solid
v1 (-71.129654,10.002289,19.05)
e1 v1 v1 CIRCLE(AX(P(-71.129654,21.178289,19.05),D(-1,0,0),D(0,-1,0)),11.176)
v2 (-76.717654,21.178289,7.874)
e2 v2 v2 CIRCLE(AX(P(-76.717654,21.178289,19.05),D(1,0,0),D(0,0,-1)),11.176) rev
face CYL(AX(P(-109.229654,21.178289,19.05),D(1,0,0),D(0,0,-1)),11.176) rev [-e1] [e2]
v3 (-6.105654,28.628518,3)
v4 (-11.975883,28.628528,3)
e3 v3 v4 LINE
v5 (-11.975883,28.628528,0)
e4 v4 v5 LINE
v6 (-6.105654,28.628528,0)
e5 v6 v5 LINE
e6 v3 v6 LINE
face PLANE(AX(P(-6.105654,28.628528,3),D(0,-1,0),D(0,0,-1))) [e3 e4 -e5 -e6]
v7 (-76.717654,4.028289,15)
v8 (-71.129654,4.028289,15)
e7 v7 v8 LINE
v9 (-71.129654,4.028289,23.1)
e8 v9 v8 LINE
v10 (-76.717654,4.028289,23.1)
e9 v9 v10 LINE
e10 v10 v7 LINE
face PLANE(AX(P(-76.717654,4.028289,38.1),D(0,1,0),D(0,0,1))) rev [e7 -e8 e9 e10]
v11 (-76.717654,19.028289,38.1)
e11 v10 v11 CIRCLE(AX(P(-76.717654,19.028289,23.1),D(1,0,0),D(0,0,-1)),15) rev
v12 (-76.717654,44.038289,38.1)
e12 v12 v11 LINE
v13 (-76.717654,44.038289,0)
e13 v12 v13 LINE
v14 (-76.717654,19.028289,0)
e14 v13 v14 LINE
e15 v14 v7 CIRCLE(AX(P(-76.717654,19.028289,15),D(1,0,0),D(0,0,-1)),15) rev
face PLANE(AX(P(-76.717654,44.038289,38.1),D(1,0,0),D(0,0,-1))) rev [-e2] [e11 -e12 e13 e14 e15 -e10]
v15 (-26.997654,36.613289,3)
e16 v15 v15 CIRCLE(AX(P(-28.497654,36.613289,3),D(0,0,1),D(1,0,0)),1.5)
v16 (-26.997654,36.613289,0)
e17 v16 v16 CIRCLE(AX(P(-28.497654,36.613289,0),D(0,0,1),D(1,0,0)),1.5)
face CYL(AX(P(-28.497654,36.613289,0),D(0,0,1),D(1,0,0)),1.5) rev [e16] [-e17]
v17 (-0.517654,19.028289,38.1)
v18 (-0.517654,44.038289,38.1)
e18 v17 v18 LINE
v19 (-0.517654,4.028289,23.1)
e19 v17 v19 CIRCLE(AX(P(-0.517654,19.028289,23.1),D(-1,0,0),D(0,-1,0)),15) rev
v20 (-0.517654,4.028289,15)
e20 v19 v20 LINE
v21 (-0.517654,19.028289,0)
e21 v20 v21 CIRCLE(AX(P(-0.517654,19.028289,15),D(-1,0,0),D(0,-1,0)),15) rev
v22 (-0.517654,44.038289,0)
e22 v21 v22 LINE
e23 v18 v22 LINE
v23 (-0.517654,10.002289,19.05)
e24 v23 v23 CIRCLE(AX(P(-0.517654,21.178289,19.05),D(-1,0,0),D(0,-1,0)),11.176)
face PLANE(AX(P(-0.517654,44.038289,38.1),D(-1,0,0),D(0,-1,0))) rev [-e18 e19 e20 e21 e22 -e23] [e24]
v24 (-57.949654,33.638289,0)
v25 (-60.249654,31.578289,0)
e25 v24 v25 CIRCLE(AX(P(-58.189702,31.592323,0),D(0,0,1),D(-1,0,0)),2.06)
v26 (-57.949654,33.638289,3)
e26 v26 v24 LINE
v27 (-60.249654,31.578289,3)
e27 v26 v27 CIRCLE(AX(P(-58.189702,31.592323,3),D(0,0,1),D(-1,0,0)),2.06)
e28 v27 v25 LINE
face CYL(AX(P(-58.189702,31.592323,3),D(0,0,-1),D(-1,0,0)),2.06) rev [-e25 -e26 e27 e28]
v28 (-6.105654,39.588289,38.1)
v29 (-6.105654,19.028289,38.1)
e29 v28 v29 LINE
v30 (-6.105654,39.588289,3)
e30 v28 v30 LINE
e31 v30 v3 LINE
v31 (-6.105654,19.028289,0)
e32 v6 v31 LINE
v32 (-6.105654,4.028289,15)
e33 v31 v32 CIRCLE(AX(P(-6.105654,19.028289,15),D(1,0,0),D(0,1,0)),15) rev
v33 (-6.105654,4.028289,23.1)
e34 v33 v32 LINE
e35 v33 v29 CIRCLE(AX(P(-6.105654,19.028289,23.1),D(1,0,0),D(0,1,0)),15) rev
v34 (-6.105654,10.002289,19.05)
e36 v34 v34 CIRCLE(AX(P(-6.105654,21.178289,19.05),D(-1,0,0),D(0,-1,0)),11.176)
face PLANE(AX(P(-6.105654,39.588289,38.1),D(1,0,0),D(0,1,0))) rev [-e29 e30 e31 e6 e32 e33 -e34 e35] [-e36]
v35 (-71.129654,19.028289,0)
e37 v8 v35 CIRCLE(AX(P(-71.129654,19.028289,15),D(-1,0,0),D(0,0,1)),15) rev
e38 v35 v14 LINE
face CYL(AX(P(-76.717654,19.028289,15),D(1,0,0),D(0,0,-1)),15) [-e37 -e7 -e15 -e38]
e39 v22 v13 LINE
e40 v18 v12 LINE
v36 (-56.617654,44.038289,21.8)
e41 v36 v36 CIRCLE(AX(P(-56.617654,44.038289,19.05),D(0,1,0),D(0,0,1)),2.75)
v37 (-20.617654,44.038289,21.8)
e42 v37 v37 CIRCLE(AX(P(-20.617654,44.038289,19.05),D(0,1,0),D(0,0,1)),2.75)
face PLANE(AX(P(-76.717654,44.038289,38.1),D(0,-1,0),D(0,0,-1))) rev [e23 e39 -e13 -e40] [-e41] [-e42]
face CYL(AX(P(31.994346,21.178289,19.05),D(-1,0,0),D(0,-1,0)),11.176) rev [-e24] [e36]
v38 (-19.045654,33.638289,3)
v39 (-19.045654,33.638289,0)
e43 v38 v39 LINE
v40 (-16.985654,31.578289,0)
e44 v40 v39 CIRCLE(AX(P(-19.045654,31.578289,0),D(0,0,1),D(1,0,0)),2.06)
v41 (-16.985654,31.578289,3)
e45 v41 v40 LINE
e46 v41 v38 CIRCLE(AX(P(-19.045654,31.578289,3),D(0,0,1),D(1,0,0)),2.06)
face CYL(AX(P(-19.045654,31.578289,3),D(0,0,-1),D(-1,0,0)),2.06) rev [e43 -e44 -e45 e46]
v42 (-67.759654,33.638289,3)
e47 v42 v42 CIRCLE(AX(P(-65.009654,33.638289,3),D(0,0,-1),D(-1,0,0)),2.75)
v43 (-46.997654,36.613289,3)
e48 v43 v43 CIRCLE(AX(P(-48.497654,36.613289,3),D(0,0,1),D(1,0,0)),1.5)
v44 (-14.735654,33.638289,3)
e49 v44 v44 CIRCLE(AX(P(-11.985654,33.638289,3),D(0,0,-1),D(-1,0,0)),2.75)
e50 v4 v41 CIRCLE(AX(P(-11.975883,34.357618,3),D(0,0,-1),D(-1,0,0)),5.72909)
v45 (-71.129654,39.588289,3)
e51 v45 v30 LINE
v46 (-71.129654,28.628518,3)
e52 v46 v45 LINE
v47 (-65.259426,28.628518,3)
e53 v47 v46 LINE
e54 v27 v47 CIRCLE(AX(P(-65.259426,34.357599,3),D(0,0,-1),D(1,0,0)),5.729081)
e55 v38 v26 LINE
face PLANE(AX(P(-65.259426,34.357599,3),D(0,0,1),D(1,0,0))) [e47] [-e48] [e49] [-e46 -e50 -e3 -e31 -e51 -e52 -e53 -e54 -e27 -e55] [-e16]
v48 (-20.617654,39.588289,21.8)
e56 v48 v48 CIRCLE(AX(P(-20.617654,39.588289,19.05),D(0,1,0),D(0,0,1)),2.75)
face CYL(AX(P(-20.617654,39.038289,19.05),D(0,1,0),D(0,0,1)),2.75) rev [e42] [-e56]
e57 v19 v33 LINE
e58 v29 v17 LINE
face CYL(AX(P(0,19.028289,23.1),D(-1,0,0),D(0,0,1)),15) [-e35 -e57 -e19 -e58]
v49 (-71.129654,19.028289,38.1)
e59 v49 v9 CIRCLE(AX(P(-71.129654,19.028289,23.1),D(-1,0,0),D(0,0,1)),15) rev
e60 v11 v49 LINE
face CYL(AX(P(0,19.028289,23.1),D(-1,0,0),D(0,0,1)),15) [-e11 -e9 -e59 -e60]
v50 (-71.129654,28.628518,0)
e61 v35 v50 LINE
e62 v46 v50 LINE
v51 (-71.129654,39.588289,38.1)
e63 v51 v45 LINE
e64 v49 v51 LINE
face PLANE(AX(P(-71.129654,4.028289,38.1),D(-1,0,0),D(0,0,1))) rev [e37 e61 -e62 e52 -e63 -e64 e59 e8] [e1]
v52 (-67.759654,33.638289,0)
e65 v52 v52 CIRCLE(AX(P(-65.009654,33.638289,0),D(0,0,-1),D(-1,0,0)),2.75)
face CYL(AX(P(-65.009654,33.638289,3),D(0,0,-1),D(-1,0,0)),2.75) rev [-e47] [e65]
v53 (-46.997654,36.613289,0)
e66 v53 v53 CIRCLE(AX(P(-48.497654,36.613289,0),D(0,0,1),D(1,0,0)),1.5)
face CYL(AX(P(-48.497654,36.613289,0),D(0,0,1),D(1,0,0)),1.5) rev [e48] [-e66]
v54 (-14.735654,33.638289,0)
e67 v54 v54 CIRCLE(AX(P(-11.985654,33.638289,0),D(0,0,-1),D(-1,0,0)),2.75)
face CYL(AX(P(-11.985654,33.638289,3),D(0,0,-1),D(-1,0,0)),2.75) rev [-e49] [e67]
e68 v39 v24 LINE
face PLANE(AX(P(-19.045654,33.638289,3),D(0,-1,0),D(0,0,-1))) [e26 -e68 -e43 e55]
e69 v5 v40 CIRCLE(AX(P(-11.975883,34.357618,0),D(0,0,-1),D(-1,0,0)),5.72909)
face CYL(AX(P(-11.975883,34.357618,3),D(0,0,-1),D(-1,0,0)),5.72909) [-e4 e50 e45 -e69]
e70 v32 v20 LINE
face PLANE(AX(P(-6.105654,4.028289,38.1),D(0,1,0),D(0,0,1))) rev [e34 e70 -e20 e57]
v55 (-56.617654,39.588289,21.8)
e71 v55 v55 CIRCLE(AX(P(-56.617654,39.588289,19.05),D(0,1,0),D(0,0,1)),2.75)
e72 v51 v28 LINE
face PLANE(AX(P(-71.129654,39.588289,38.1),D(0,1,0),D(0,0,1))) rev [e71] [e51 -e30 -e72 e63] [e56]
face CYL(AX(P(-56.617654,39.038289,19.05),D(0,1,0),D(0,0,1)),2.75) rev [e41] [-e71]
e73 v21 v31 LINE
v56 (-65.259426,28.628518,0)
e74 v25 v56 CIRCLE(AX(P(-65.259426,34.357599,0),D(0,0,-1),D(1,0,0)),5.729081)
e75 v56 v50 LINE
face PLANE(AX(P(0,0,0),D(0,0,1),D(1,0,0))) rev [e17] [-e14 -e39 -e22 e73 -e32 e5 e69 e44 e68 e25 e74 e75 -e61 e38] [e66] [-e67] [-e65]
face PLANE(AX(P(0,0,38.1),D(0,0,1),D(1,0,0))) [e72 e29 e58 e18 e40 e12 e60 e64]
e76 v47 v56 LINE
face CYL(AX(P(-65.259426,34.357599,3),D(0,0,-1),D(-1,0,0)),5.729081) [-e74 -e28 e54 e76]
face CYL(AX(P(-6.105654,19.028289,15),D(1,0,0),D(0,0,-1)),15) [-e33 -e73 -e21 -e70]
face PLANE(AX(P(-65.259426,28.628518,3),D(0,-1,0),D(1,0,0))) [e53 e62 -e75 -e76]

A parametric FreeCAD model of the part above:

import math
import FreeCAD as App
import Part
import Sketcher
from FreeCAD import Vector
Q = App.Units.Quantity


def edges_at(feature, points):
    """Names of the edges that pass closest to the given points."""
    edges = feature.Shape.Edges
    near = lambda p: min(range(len(edges)), key=lambda i: edges[i].distToShape(Part.Vertex(*p))[0])
    return sorted({f"Edge{near(p) + 1}" for p in points})


def add_polygon(sketch, points):
    """Adds a closed chain of lines whose ends are joined by coincident constraints."""
    first, n = sketch.GeometryCount, len(points)
    for a, b in zip(points, points[1:] + points[:1]):
        sketch.addGeometry(Part.LineSegment(App.Vector(*a, 0), App.Vector(*b, 0)), False)
    for i in range(n):
        sketch.addConstraint(Sketcher.Constraint("Coincident", first + i, 2, first + (i + 1) % n, 1))

doc = App.newDocument("Part")
body = doc.addObject("PartDesign::Body", "Body")

# Sketch on XY plane
sketch1 = body.newObject("Sketcher::SketchObject", "Sketch")
sketch1.AttachmentSupport = (doc.getObject("XY_Plane"), [""])
sketch1.MapMode = "FlatFace"
add_polygon(sketch1, [(-1, 44), (-77, 44), (-77, 4), (-71, 4), (-71, 40), (-6, 40), (-6, 4), (-1, 4)])  # lines 0-7
sketch1.addConstraint([
    Sketcher.Constraint("Horizontal", 0),
    Sketcher.Constraint("Vertical", 1),
    Sketcher.Constraint("Horizontal", 2),
    Sketcher.Constraint("Vertical", 3),
    Sketcher.Constraint("Horizontal", 4),
    Sketcher.Constraint("Vertical", 5),
    Sketcher.Constraint("Horizontal", 6),
    Sketcher.Constraint("Vertical", 7),
    Sketcher.Constraint("Horizontal", 2, 2, 5, 2),
    Sketcher.Constraint("Equal", 2, 6),
    Sketcher.Constraint("DistanceX", 0, 2, 0, 1, Q("3 in")),
    Sketcher.Constraint("DistanceY", 3, 1, 3, 2, Q("1.4 in")),
    Sketcher.Constraint("DistanceX", 2, 1, 2, 2, Q("0.22 in")),
    Sketcher.Constraint("DistanceY", 1, 2, 1, 1, Q("40.01 mm")),
    Sketcher.Constraint("DistanceY", -1, 1, 0, 2, Q("44.038289 mm")),
    Sketcher.Constraint("DistanceX", 0, 2, -1, 1, Q("76.717654 mm")),
])
pad1 = body.newObject("PartDesign::Pad", "Pad")
pad1.Profile = sketch1
pad1.Length = Q("1.5 in")

# Sketch on YZ plane
sketch2 = body.newObject("Sketcher::SketchObject", "Sketch001")
sketch2.AttachmentSupport = (doc.getObject("YZ_Plane"), [""])
sketch2.MapMode = "FlatFace"
sketch2.AttachmentOffset = App.Placement(Vector(0, 0, -6.105654), App.Rotation())
sketch2.addGeometry(Part.Circle(Vector(21, 19, 0), Vector(0, 0, 1), 11), False)
sketch2.addConstraint([
    Sketcher.Constraint("Diameter", 0, Q("0.88 in")),
    Sketcher.Constraint("DistanceY", -1, 1, 0, 3, Q("0.75 in")),
    Sketcher.Constraint("DistanceX", -1, 1, 0, 3, Q("21.178289 mm")),
])
pocket1 = body.newObject("PartDesign::Pocket", "Pocket")
pocket1.Profile = sketch2
pocket1.Length = Q("1.5 in")
pocket1.Reversed = True
doc.recompute()

datumplane = body.newObject("PartDesign::Plane", "DatumPlane")
datumplane.AttachmentSupport = (doc.getObject("YZ_Plane"), [""])
datumplane.MapMode = "FlatFace"
datumplane.AttachmentOffset = App.Placement(Vector(0, 0, -38.617654), App.Rotation())
mirrored = body.newObject("PartDesign::Mirrored", "Mirrored")
mirrored.Originals = [pocket1]
mirrored.MirrorPlane = (datumplane, [""])
body.Tip = mirrored
doc.recompute()

fillet = body.newObject("PartDesign::Fillet", "Fillet")
fillet.Base = (mirrored, edges_at(mirrored, [
    (-73.924, 4.028, 0),
    (-3.312, 4.028, 38.1),
    (-73.924, 4.028, 38.1),
    (-3.312, 4.028, 0),
]))
fillet.Radius = 15

# Sketch on XZ plane
sketch3 = body.newObject("Sketcher::SketchObject", "Sketch002")
sketch3.AttachmentSupport = (doc.getObject("XZ_Plane"), [""])
sketch3.MapMode = "FlatFace"
sketch3.AttachmentOffset = App.Placement(Vector(0, 0, -44.038289), App.Rotation())
sketch3.addGeometry([
    Part.Circle(Vector(-56.6, 19.1, 0), Vector(0, 0, 1), 1.5),
    Part.Circle(Vector(-20.6, 19.1, 0), Vector(0, 0, 1), 1.5),
], False)
sketch3.addConstraint([
    Sketcher.Constraint("Equal", 0, 1),
    Sketcher.Constraint("Horizontal", 0, 3, 1, 3),
    Sketcher.Constraint("Diameter", 0, Q("3.02 mm")),
    Sketcher.Constraint("DistanceY", -1, 1, 0, 3, Q("0.75 in")),
    Sketcher.Constraint("DistanceX", 0, 3, 1, 3, Q("36 mm")),
    Sketcher.Constraint("DistanceX", 0, 3, -1, 1, Q("56.617654 mm")),
])
pocket2 = body.newObject("PartDesign::Pocket", "Pocket001")
pocket2.Profile = sketch3
pocket2.Length = 10
pocket2.Reversed = True

# Sketch on XZ plane
sketch4 = body.newObject("Sketcher::SketchObject", "Sketch003")
sketch4.AttachmentSupport = (doc.getObject("XZ_Plane"), [""])
sketch4.MapMode = "FlatFace"
sketch4.AttachmentOffset = App.Placement(Vector(0, 0, -44.038289), App.Rotation())
sketch4.addGeometry([
    Part.Circle(Vector(-56.6, 19.1, 0), Vector(0, 0, 1), 2.8),
    Part.Circle(Vector(-20.6, 19.1, 0), Vector(0, 0, 1), 2.8),
], False)
sketch4.addConstraint([
    Sketcher.Constraint("Equal", 0, 1),
    Sketcher.Constraint("Horizontal", 0, 3, 1, 3),
    Sketcher.Constraint("Diameter", 0, Q("5.5 mm")),
    Sketcher.Constraint("DistanceY", -1, 1, 0, 3, Q("0.75 in")),
    Sketcher.Constraint("DistanceX", 0, 3, 1, 3, Q("36 mm")),
    Sketcher.Constraint("DistanceX", 0, 3, -1, 1, Q("56.617654 mm")),
])
pocket3 = body.newObject("PartDesign::Pocket", "Pocket002")
pocket3.Profile = sketch4
pocket3.Length = 5
pocket3.Reversed = True

# Sketch on XY plane
sketch5 = body.newObject("Sketcher::SketchObject", "Sketch004")
sketch5.AttachmentSupport = (doc.getObject("XY_Plane"), [""])
sketch5.MapMode = "FlatFace"
sketch5.addGeometry([
    Part.LineSegment(Vector(-71.1, 39.6, 0), Vector(-6.1, 39.6, 0)),  # 0
    Part.LineSegment(Vector(-6.1, 39.6, 0), Vector(-6.1, 28.6, 0)),  # 1
    Part.LineSegment(Vector(-6.1, 28.6, 0), Vector(-12, 28.6, 0)),  # 2
    Part.ArcOfCircle(Part.Circle(Vector(-12, 34.4, 0), Vector(0, 0, 1), 5.7), math.radians(-151), math.radians(-90)),  # 3
    Part.ArcOfCircle(Part.Circle(Vector(-19, 31.6, 0), Vector(0, 0, 1), 2.1), math.radians(0), math.radians(90)),  # 4
    Part.LineSegment(Vector(-19, 33.6, 0), Vector(-57.9, 33.6, 0)),  # 5
    Part.ArcOfCircle(Part.Circle(Vector(-58.2, 31.6, 0), Vector(0, 0, 1), 2.1), math.radians(83), math.radians(180)),  # 6
    Part.ArcOfCircle(Part.Circle(Vector(-65.3, 34.4, 0), Vector(0, 0, 1), 5.7), math.radians(-90), math.radians(-29)),  # 7
    Part.LineSegment(Vector(-65.3, 28.6, 0), Vector(-71.1, 28.6, 0)),  # 8
    Part.LineSegment(Vector(-71.1, 28.6, 0), Vector(-71.1, 39.6, 0)),  # 9
    Part.Circle(Vector(-65, 33.6, 0), Vector(0, 0, 1), 2.8),  # 10
    Part.Circle(Vector(-12, 33.6, 0), Vector(0, 0, 1), 2.8),  # 11
], False)
sketch5.addConstraint([
    Sketcher.Constraint("Coincident", 0, 2, 1, 1),
    Sketcher.Constraint("Coincident", 1, 2, 2, 1),
    Sketcher.Constraint("Tangent", 2, 2, 3, 2),
    Sketcher.Constraint("Coincident", 3, 1, 4, 1),
    Sketcher.Constraint("Tangent", 4, 2, 5, 1),
    Sketcher.Constraint("Coincident", 5, 2, 6, 1),
    Sketcher.Constraint("Coincident", 6, 2, 7, 2),
    Sketcher.Constraint("Tangent", 7, 1, 8, 1),
    Sketcher.Constraint("Coincident", 8, 2, 9, 1),
    Sketcher.Constraint("Coincident", 9, 2, 0, 1),
    Sketcher.Constraint("Horizontal", 0),
    Sketcher.Constraint("Vertical", 1),
    Sketcher.Constraint("Horizontal", 2),
    Sketcher.Constraint("Horizontal", 5),
    Sketcher.Constraint("Horizontal", 8),
    Sketcher.Constraint("Vertical", 9),
    Sketcher.Constraint("Equal", 4, 6),
    Sketcher.Constraint("Equal", 10, 11),
    Sketcher.Constraint("Horizontal", 10, 3, 11, 3),
    Sketcher.Constraint("Horizontal", 4, 3, 3, 1),
    Sketcher.Constraint("Horizontal", 11, 3, 4, 2),
    Sketcher.Constraint("Horizontal", 3, 1, 6, 2),
    Sketcher.Constraint("Equal", 2, 8),
    Sketcher.Constraint("DistanceX", 0, 1, 0, 2, Q("2.56 in")),
    Sketcher.Constraint("Diameter", 10, Q("5.5 mm")),
    Sketcher.Constraint("Radius", 4, Q("2.06 mm")),
    Sketcher.Constraint("Radius", 3, Q("5.72909 mm")),
    Sketcher.Constraint("Radius", 7, Q("5.729081 mm")),
    Sketcher.Constraint("DistanceX", 5, 2, 5, 1, Q("38.904 mm")),
    Sketcher.Constraint("DistanceX", 2, 2, 2, 1, Q("5.870229 mm")),
    Sketcher.Constraint("DistanceY", 1, 2, 1, 1, Q("10.959762 mm")),
    Sketcher.Constraint("DistanceY", 9, 1, 9, 2, Q("10.959771 mm")),
    Sketcher.Constraint("DistanceY", -1, 1, 7, 3, Q("34.357599 mm")),
    Sketcher.Constraint("DistanceX", 10, 3, 4, 3, Q("45.964 mm")),
    Sketcher.Constraint("DistanceX", 4, 3, 11, 3, Q("7.06 mm")),
    Sketcher.Constraint("DistanceX", 11, 3, 0, 2, Q("5.88 mm")),
    Sketcher.Constraint("DistanceX", 3, 3, -1, 1, Q("11.975883 mm")),
])
pad2 = body.newObject("PartDesign::Pad", "Pad001")
pad2.Profile = sketch5
pad2.Length = 3

# Sketch on XY plane
sketch6 = body.newObject("Sketcher::SketchObject", "Sketch005")
sketch6.AttachmentSupport = (doc.getObject("XY_Plane"), [""])
sketch6.MapMode = "FlatFace"
sketch6.AttachmentOffset = App.Placement(Vector(0, 0, 3), App.Rotation())
sketch6.addGeometry([
    Part.Circle(Vector(-28.5, 36.6, 0), Vector(0, 0, 1), 1.5),
    Part.Circle(Vector(-48.5, 36.6, 0), Vector(0, 0, 1), 1.5),
], False)
sketch6.addConstraint([
    Sketcher.Constraint("Equal", 0, 1),
    Sketcher.Constraint("Horizontal", 0, 3, 1, 3),
    Sketcher.Constraint("Diameter", 0, Q("3 mm")),
    Sketcher.Constraint("DistanceX", 1, 3, 0, 3, Q("20 mm")),
    Sketcher.Constraint("DistanceY", -1, 1, 0, 3, Q("36.613289 mm")),
    Sketcher.Constraint("DistanceX", 0, 3, -1, 1, Q("28.497654 mm")),
])
pocket4 = body.newObject("PartDesign::Pocket", "Pocket003")
pocket4.Profile = sketch6
pocket4.Length = 3

doc.recompute()
